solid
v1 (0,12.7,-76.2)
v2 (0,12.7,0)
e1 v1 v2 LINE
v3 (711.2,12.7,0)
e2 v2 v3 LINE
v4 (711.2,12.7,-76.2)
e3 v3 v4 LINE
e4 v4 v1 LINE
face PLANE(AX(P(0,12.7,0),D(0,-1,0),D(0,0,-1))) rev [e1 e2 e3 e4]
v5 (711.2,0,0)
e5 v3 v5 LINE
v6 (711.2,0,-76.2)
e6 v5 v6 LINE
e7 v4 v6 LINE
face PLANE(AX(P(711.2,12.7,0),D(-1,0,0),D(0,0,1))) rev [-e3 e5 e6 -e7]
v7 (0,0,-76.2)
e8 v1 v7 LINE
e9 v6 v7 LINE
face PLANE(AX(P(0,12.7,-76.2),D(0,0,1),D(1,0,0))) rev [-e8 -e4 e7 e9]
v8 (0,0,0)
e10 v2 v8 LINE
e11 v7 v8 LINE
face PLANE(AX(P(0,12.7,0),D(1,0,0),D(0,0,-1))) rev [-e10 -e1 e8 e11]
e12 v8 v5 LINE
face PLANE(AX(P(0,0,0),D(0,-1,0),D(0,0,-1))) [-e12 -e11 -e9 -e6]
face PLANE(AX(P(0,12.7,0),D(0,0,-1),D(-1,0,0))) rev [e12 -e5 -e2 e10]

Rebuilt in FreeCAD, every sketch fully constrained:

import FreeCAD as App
import Part
import Sketcher

V = App.Vector
Q = App.Units.Quantity


def add_polygon(sketch, points):
    """Adds a closed chain of lines whose ends are joined by coincident constraints."""
    first, n = sketch.GeometryCount, len(points)
    for a, b in zip(points, points[1:] + points[:1]):
        sketch.addGeometry(Part.LineSegment(App.Vector(*a, 0), App.Vector(*b, 0)), False)
    for i in range(n):
        sketch.addConstraint(Sketcher.Constraint("Coincident", first + i, 2, first + (i + 1) % n, 1))

doc = App.newDocument("Part")
params = doc.addObject("Spreadsheet::Sheet", "Params")
for row, (alias, value) in enumerate([
    ("sketch1_width", "28 in"),
    ("sketch1_height", "3 in"),
    ("pad1_length", "0.5 in"),
], start=1):
    params.set(f"A{row}", alias)
    params.set(f"B{row}", "=" + value)
    params.setAlias(f"B{row}", alias)

body = doc.addObject("PartDesign::Body", "Body")

# Sketch on XZ plane
sketch1 = doc.addObject("Sketcher::SketchObject", "Sketch")
body.addObject(sketch1)
sketch1.AttachmentSupport = (doc.XZ_Plane, [""])
sketch1.MapMode = "FlatFace"
add_polygon(sketch1, [(0, -76), (0, 0), (711, 0), (711, -76)])  # lines 0-3
sketch1.addConstraint(Sketcher.Constraint("Vertical", 0))
sketch1.addConstraint(Sketcher.Constraint("Horizontal", 1))
sketch1.addConstraint(Sketcher.Constraint("Vertical", 2))
sketch1.addConstraint(Sketcher.Constraint("Horizontal", 3))
sketch1.addConstraint(Sketcher.Constraint("Coincident", 0, 2, -1, 1))
sketch1.addConstraint(Sketcher.Constraint("DistanceX", 1, 1, 1, 2, Q("28 in")))
sketch1.addConstraint(Sketcher.Constraint("DistanceY", 0, 1, 0, 2, Q("3 in")))
sketch1.setExpression("Constraints[9]", "Params.sketch1_width")
sketch1.setExpression("Constraints[10]", "Params.sketch1_height")
pad1 = doc.addObject("PartDesign::Pad", "Pad")
body.addObject(pad1)
pad1.Profile = sketch1
pad1.setExpression("Length", "Params.pad1_length")
pad1.Reversed = True

doc.recompute()
